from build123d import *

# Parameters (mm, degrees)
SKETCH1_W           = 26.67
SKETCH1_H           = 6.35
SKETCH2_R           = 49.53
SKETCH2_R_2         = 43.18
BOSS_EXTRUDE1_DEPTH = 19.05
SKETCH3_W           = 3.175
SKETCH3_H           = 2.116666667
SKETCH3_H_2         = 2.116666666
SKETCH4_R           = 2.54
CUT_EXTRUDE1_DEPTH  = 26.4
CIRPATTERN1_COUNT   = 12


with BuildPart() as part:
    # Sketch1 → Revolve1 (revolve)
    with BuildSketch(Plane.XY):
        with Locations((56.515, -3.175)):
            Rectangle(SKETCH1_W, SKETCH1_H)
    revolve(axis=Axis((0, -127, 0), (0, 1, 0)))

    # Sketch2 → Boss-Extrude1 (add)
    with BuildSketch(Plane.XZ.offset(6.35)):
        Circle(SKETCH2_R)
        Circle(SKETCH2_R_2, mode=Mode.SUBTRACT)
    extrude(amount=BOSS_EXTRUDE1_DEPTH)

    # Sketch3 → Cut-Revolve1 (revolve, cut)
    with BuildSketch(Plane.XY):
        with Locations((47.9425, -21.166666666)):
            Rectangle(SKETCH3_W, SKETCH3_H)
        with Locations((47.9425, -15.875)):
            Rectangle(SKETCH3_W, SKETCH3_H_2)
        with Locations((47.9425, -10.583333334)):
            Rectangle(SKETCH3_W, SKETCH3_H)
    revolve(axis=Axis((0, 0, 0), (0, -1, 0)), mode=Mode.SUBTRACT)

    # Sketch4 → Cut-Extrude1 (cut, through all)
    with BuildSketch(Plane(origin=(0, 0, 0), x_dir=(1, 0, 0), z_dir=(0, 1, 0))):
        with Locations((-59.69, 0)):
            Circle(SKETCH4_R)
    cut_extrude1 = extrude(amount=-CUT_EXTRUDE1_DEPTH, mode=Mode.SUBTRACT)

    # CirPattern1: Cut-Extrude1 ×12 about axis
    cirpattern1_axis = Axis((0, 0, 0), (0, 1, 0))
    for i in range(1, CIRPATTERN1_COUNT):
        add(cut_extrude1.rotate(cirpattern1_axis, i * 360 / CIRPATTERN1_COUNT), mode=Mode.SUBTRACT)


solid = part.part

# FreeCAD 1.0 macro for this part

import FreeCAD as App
import Part
import Sketcher
from FreeCAD import Vector
Q = App.Units.Quantity


def add_polygon(sketch, points):
    """Adds a closed chain of lines whose ends are joined by coincident constraints."""
    first, n = sketch.GeometryCount, len(points)
    for a, b in zip(points, points[1:] + points[:1]):
        sketch.addGeometry(Part.LineSegment(App.Vector(*a, 0), App.Vector(*b, 0)), False)
    for i in range(n):
        sketch.addConstraint(Sketcher.Constraint("Coincident", first + i, 2, first + (i + 1) % n, 1))

doc = App.newDocument("Part")
body = doc.addObject("PartDesign::Body", "Body")

sketch1 = doc.addObject("Sketcher::SketchObject", "Sketch")
body.addObject(sketch1)
sketch1.AttachmentSupport = (doc.XY_Plane, [""])
sketch1.MapMode = "FlatFace"
add_polygon(sketch1, [(43.18, 0), (43.18, -6.35), (69.85, -6.35), (69.85, 0)])
sketch1.addConstraint(Sketcher.Constraint("Vertical", 0))
sketch1.addConstraint(Sketcher.Constraint("Horizontal", 1))
sketch1.addConstraint(Sketcher.Constraint("Vertical", 2))
sketch1.addConstraint(Sketcher.Constraint("Horizontal", 3))
sketch1.addConstraint(Sketcher.Constraint("PointOnObject", 2, 2, -1))
sketch1.addConstraint(Sketcher.Constraint("DistanceX", 1, 1, 1, 2, Q("1.05 in")))
sketch1.addConstraint(Sketcher.Constraint("DistanceY", 0, 2, 0, 1, Q("0.25 in")))
sketch1.addConstraint(Sketcher.Constraint("DistanceX", -1, 1, 0, 2, Q("1.7 in")))
revolution = doc.addObject("PartDesign::Revolution", "Revolution")
body.addObject(revolution)
revolution.Profile = sketch1
revolution.ReferenceAxis = (sketch1, ["V_Axis"])
revolution.Angle = 360

sketch2 = doc.addObject("Sketcher::SketchObject", "Sketch001")
body.addObject(sketch2)
sketch2.AttachmentSupport = (doc.XZ_Plane, [""])
sketch2.MapMode = "FlatFace"
sketch2.AttachmentOffset = App.Placement(Vector(0, 0, 0.25 * 25.4), App.Rotation())
sketch2.addGeometry(Part.Circle(Vector(0, 0, 0), Vector(0, 0, 1), 49.53), False)
sketch2.addGeometry(Part.Circle(Vector(0, 0, 0), Vector(0, 0, 1), 43.18), False)
sketch2.addConstraint(Sketcher.Constraint("Coincident", 0, 3, -1, 1))
sketch2.addConstraint(Sketcher.Constraint("Coincident", 1, 3, -1, 1))
sketch2.addConstraint(Sketcher.Constraint("Diameter", 0, Q("3.9 in")))
sketch2.addConstraint(Sketcher.Constraint("Diameter", 1, Q("3.4 in")))
pad1 = doc.addObject("PartDesign::Pad", "Pad")
body.addObject(pad1)
pad1.Profile = sketch2
pad1.Length = Q("0.75 in")

sketch3 = doc.addObject("Sketcher::SketchObject", "Sketch002")
body.addObject(sketch3)
sketch3.AttachmentSupport = (doc.XY_Plane, [""])
sketch3.MapMode = "FlatFace"
add_polygon(sketch3, [(46.355, -20.108333), (46.355, -22.225), (49.53, -22.225), (49.53, -20.108333)])
add_polygon(sketch3, [(46.355, -14.816667), (46.355, -16.933333), (49.53, -16.933333), (49.53, -14.816667)])
add_polygon(sketch3, [(46.355, -9.525), (46.355, -11.641667), (49.53, -11.641667), (49.53, -9.525)])
sketch3.addConstraint(Sketcher.Constraint("Vertical", 0))
sketch3.addConstraint(Sketcher.Constraint("Horizontal", 1))
sketch3.addConstraint(Sketcher.Constraint("Vertical", 2))
sketch3.addConstraint(Sketcher.Constraint("Horizontal", 3))
sketch3.addConstraint(Sketcher.Constraint("Vertical", 4))
sketch3.addConstraint(Sketcher.Constraint("Horizontal", 5))
sketch3.addConstraint(Sketcher.Constraint("Vertical", 6))
sketch3.addConstraint(Sketcher.Constraint("Horizontal", 7))
sketch3.addConstraint(Sketcher.Constraint("Vertical", 8))
sketch3.addConstraint(Sketcher.Constraint("Horizontal", 9))
sketch3.addConstraint(Sketcher.Constraint("Vertical", 10))
sketch3.addConstraint(Sketcher.Constraint("Horizontal", 11))
sketch3.addConstraint(Sketcher.Constraint("Vertical", 3, 2, 4, 2))
sketch3.addConstraint(Sketcher.Constraint("Vertical", 2, 2, 5, 2))
sketch3.addConstraint(Sketcher.Constraint("Vertical", 7, 2, 8, 2))
sketch3.addConstraint(Sketcher.Constraint("Vertical", 6, 2, 9, 2))
sketch3.addConstraint(Sketcher.Constraint("Equal", 2, 4))
sketch3.addConstraint(Sketcher.Constraint("Equal", 6, 8))
sketch3.addConstraint(Sketcher.Constraint("DistanceX", 1, 1, 1, 2, Q("0.125 in")))
sketch3.addConstraint(Sketcher.Constraint("DistanceX", -1, 1, 1, 2, Q("1.95 in")))
sketch3.addConstraint(Sketcher.Constraint("DistanceY", 0, 2, -1, 1, Q("0.875 in")))
sketch3.addConstraint(Sketcher.Constraint("DistanceY", 10, 2, -1, 1, Q("0.375 in")))
sketch3.addConstraint(Sketcher.Constraint("DistanceY", 3, 2, 4, 2, Q("0.125 in")))
sketch3.addConstraint(Sketcher.Constraint("DistanceY", 7, 2, 8, 2, Q("0.125 in")))
groove = doc.addObject("PartDesign::Groove", "Groove")
body.addObject(groove)
groove.Profile = sketch3
groove.ReferenceAxis = (sketch3, ["V_Axis"])
groove.Angle = 360

sketch4 = doc.addObject("Sketcher::SketchObject", "Sketch003")
body.addObject(sketch4)
sketch4.AttachmentSupport = (doc.XZ_Plane, [""])
sketch4.MapMode = "FlatFace"
sketch4.addGeometry(Part.Circle(Vector(-59.69, 0, 0), Vector(0, 0, 1), 2.54), False)
sketch4.addConstraint(Sketcher.Constraint("PointOnObject", 0, 3, -1))
sketch4.addConstraint(Sketcher.Constraint("Diameter", 0, Q("0.2 in")))
sketch4.addConstraint(Sketcher.Constraint("DistanceX", 0, 3, -1, 1, Q("2.35 in")))
pocket1 = doc.addObject("PartDesign::Pocket", "Pocket")
body.addObject(pocket1)
pocket1.Profile = sketch4
pocket1.Type = "ThroughAll"
pocket1.Reversed = True
doc.recompute()

polarpattern = doc.addObject("PartDesign::PolarPattern", "PolarPattern")
body.addObject(polarpattern)
polarpattern.Originals = [pocket1]
polarpattern.Axis = (doc.Y_Axis, [""])
polarpattern.Angle = 360
polarpattern.Occurrences = 12
body.Tip = polarpattern

doc.recompute()
